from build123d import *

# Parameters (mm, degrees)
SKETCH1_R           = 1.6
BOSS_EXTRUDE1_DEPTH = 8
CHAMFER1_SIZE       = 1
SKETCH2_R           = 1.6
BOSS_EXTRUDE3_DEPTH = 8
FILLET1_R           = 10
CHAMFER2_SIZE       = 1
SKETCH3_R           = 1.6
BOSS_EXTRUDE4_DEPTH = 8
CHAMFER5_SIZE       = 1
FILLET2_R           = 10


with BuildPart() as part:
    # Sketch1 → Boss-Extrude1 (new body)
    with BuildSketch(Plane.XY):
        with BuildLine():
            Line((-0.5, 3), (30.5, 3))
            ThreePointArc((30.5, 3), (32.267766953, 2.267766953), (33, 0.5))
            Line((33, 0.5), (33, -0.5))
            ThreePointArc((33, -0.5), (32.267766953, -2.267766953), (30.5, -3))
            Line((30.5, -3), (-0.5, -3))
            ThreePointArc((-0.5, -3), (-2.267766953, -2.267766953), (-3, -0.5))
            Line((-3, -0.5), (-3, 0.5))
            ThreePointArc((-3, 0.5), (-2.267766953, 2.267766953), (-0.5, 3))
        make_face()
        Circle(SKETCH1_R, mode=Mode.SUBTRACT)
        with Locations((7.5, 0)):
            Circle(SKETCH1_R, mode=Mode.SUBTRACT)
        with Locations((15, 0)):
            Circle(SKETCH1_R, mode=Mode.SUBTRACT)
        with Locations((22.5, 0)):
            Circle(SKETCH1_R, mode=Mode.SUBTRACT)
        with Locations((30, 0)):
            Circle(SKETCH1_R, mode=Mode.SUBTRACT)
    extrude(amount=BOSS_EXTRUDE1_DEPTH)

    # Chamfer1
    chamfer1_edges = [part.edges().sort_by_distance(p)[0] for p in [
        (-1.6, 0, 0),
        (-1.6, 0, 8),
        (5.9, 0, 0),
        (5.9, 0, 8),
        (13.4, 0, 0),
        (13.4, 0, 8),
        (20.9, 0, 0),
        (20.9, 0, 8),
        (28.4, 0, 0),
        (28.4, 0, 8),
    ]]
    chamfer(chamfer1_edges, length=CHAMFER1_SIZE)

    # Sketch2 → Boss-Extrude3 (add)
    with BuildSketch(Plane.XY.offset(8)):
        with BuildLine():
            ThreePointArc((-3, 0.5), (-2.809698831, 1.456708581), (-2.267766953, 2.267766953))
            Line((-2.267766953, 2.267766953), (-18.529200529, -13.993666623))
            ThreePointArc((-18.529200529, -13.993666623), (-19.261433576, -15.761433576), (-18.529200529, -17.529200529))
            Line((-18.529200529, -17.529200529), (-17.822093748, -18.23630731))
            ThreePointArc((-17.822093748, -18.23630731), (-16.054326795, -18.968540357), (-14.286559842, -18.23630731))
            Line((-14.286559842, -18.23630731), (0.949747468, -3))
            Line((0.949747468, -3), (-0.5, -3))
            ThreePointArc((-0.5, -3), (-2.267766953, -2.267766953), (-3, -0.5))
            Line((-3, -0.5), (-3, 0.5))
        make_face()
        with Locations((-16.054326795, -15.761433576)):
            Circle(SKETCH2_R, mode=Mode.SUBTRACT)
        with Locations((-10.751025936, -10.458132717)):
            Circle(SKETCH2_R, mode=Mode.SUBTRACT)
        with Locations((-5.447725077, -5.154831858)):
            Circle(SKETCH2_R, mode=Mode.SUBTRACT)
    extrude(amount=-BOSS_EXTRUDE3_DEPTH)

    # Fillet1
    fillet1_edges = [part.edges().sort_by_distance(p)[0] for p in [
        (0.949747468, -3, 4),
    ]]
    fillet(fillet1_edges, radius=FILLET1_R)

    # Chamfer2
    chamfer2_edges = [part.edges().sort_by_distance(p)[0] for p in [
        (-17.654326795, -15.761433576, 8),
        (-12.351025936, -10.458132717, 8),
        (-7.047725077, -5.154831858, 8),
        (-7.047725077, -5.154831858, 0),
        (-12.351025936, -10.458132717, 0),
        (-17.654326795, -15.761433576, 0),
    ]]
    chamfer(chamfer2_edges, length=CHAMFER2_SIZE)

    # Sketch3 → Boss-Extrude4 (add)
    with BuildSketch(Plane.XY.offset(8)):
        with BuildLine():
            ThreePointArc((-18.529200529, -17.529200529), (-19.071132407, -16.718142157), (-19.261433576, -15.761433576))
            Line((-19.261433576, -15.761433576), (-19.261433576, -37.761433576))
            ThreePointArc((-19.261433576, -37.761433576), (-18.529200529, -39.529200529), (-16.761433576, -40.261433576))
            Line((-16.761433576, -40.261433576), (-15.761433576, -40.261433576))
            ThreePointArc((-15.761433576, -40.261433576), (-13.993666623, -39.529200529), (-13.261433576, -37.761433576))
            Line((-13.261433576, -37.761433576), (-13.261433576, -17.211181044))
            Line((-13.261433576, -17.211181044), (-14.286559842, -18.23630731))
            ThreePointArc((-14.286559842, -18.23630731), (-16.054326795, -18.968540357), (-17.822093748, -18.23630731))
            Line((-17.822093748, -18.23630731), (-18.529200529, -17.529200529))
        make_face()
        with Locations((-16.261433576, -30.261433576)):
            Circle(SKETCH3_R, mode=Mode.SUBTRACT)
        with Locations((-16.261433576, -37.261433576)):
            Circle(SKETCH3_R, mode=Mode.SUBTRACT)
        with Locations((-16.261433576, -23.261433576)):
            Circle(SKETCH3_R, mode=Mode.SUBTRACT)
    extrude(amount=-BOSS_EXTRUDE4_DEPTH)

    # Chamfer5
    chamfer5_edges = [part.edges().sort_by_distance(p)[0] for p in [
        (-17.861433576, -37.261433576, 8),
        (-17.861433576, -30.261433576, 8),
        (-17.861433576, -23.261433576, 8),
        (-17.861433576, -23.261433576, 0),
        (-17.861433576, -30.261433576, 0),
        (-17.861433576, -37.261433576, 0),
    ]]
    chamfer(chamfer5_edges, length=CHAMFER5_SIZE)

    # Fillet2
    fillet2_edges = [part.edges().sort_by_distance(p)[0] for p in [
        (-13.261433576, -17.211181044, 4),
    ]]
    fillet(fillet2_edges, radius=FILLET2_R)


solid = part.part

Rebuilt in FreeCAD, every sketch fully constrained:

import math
import FreeCAD as App
import Part
import Sketcher
from FreeCAD import Vector
Q = App.Units.Quantity


def edges_at(feature, points):
    """Names of the edges that pass closest to the given points."""
    edges = feature.Shape.Edges
    near = lambda p: min(range(len(edges)), key=lambda i: edges[i].distToShape(Part.Vertex(*p))[0])
    return sorted({f"Edge{near(p) + 1}" for p in points})

doc = App.newDocument("Part")
body = doc.addObject("PartDesign::Body", "Body")

sketch1 = body.newObject("Sketcher::SketchObject", "Sketch")
sketch1.AttachmentSupport = (doc.getObject("XY_Plane"), [""])
sketch1.MapMode = "FlatFace"
sketch1.addGeometry([
    Part.LineSegment(Vector(30.5, 3, 0), Vector(-0.5, 3, 0)),
    Part.ArcOfCircle(Part.Circle(Vector(-0.5, 0.5, 0), Vector(0, 0, 1), 2.5), math.radians(90), math.radians(180)),
    Part.LineSegment(Vector(-3, 0.5, 0), Vector(-3, -0.5, 0)),
    Part.ArcOfCircle(Part.Circle(Vector(-0.5, -0.5, 0), Vector(0, 0, 1), 2.5), math.radians(180), math.radians(270)),
    Part.LineSegment(Vector(-0.5, -3, 0), Vector(30.5, -3, 0)),
    Part.ArcOfCircle(Part.Circle(Vector(30.5, -0.5, 0), Vector(0, 0, 1), 2.5), math.radians(-90), math.radians(0)),
    Part.LineSegment(Vector(33, -0.5, 0), Vector(33, 0.5, 0)),
    Part.ArcOfCircle(Part.Circle(Vector(30.5, 0.5, 0), Vector(0, 0, 1), 2.5), math.radians(0), math.radians(90)),
    Part.Circle(Vector(30, 0, 0), Vector(0, 0, 1), 1.6),
    Part.Circle(Vector(22.5, 0, 0), Vector(0, 0, 1), 1.6),
    Part.Circle(Vector(15, 0, 0), Vector(0, 0, 1), 1.6),
    Part.Circle(Vector(7.5, 0, 0), Vector(0, 0, 1), 1.6),
    Part.Circle(Vector(0, 0, 0), Vector(0, 0, 1), 1.6),
], False)
sketch1.addConstraint([
    Sketcher.Constraint("Tangent", 0, 2, 1, 1),
    Sketcher.Constraint("Tangent", 1, 2, 2, 1),
    Sketcher.Constraint("Tangent", 2, 2, 3, 1),
    Sketcher.Constraint("Tangent", 3, 2, 4, 1),
    Sketcher.Constraint("Tangent", 4, 2, 5, 1),
    Sketcher.Constraint("Tangent", 5, 2, 6, 1),
    Sketcher.Constraint("Tangent", 6, 2, 7, 1),
    Sketcher.Constraint("Tangent", 7, 2, 0, 1),
    Sketcher.Constraint("Horizontal", 0),
    Sketcher.Constraint("Vertical", 2),
    Sketcher.Constraint("Horizontal", 4),
    Sketcher.Constraint("Vertical", 6),
    Sketcher.Constraint("Coincident", 12, 3, -1, 1),
    Sketcher.Constraint("Equal", 1, 3),
    Sketcher.Constraint("Equal", 3, 5),
    Sketcher.Constraint("Equal", 5, 7),
    Sketcher.Constraint("Equal", 8, 9),
    Sketcher.Constraint("Equal", 9, 10),
    Sketcher.Constraint("Equal", 10, 11),
    Sketcher.Constraint("Equal", 11, 12),
    Sketcher.Constraint("PointOnObject", 8, 3, -1),
    Sketcher.Constraint("PointOnObject", 9, 3, -1),
    Sketcher.Constraint("PointOnObject", 10, 3, -1),
    Sketcher.Constraint("PointOnObject", 11, 3, -1),
    Sketcher.Constraint("Diameter", 8, Q("3.2 mm")),
    Sketcher.Constraint("Radius", 1, Q("2.5 mm")),
    Sketcher.Constraint("DistanceX", 0, 2, 0, 1, Q("31 mm")),
    Sketcher.Constraint("DistanceY", 2, 2, 2, 1, Q("1 mm")),
    Sketcher.Constraint("DistanceX", -1, 1, 8, 3, Q("30 mm")),
    Sketcher.Constraint("DistanceX", -1, 1, 10, 3, Q("15 mm")),
    Sketcher.Constraint("DistanceY", -1, 1, 0, 2, Q("3 mm")),
    Sketcher.Constraint("DistanceX", 1, 2, -1, 1, Q("3 mm")),
    Sketcher.Constraint("DistanceX", 9, 3, 5, 3, Q("8 mm")),
    Sketcher.Constraint("DistanceX", 1, 3, 11, 3, Q("8 mm")),
])
pad1 = body.newObject("PartDesign::Pad", "Pad")
pad1.Profile = sketch1
pad1.Length = 8
doc.recompute()

chamfer = body.newObject("PartDesign::Chamfer", "Chamfer")
chamfer.Base = (pad1, edges_at(pad1, [
    (-1.6, 0, 0),
    (-1.6, 0, 8),
    (5.9, 0, 0),
    (5.9, 0, 8),
    (13.4, 0, 0),
    (13.4, 0, 8),
    (20.9, 0, 0),
    (20.9, 0, 8),
    (28.4, 0, 0),
    (28.4, 0, 8),
]))
chamfer.Size = 1

sketch2 = body.newObject("Sketcher::SketchObject", "Sketch001")
sketch2.AttachmentSupport = (doc.getObject("XY_Plane"), [""])
sketch2.MapMode = "FlatFace"
sketch2.AttachmentOffset = App.Placement(Vector(0, 0, 8), App.Rotation())
sketch2.addGeometry([
    Part.ArcOfCircle(Part.Circle(Vector(-0.5, 0.5, 0), Vector(0, 0, 1), 2.5), math.radians(135), math.radians(180)),
    Part.LineSegment(Vector(-2.3, 2.3, 0), Vector(-18.5, -14, 0)),
    Part.ArcOfCircle(Part.Circle(Vector(-16.8, -15.8, 0), Vector(0, 0, 1), 2.5), math.radians(135), math.radians(225)),
    Part.LineSegment(Vector(-18.5, -17.5, 0), Vector(-17.8, -18.2, 0)),
    Part.ArcOfCircle(Part.Circle(Vector(-16.1, -16.5, 0), Vector(0, 0, 1), 2.5), math.radians(-135), math.radians(-45)),
    Part.LineSegment(Vector(-14.3, -18.2, 0), Vector(0.9, -3, 0)),
    Part.LineSegment(Vector(0.9, -3, 0), Vector(-0.5, -3, 0)),
    Part.ArcOfCircle(Part.Circle(Vector(-0.5, -0.5, 0), Vector(0, 0, 1), 2.5), math.radians(180), math.radians(270)),
    Part.LineSegment(Vector(-3, -0.5, 0), Vector(-3, 0.5, 0)),
    Part.Circle(Vector(-16.1, -15.8, 0), Vector(0, 0, 1), 1.6),
    Part.Circle(Vector(-10.8, -10.5, 0), Vector(0, 0, 1), 1.6),
    Part.Circle(Vector(-5.4, -5.2, 0), Vector(0, 0, 1), 1.6),
], False)
sketch2.addConstraint([
    Sketcher.Constraint("Tangent", 0, 1, 1, 1),
    Sketcher.Constraint("Tangent", 1, 2, 2, 1),
    Sketcher.Constraint("Tangent", 2, 2, 3, 1),
    Sketcher.Constraint("Tangent", 3, 2, 4, 1),
    Sketcher.Constraint("Tangent", 4, 2, 5, 1),
    Sketcher.Constraint("Coincident", 5, 2, 6, 1),
    Sketcher.Constraint("Tangent", 6, 2, 7, 2),
    Sketcher.Constraint("Tangent", 7, 1, 8, 1),
    Sketcher.Constraint("Tangent", 8, 2, 0, 2),
    Sketcher.Constraint("Horizontal", 6),
    Sketcher.Constraint("Vertical", 8),
    Sketcher.Constraint("Equal", 0, 2),
    Sketcher.Constraint("Equal", 2, 4),
    Sketcher.Constraint("Equal", 4, 7),
    Sketcher.Constraint("Equal", 9, 10),
    Sketcher.Constraint("Equal", 10, 11),
    Sketcher.Constraint("Perpendicular", 1, 3),
    Sketcher.Constraint("Perpendicular", 3, 5),
    Sketcher.Constraint("Horizontal", 2, 3, 9, 3),
    Sketcher.Constraint("Horizontal", 3, 2, 4, 2),
    Sketcher.Constraint("Vertical", 4, 3, 9, 3),
    Sketcher.Constraint("Diameter", 9, Q("3.2 mm")),
    Sketcher.Constraint("Radius", 0, Q("2.5 mm")),
    Sketcher.Constraint("DistanceY", 8, 1, 8, 2, Q("1 mm")),
    Sketcher.Constraint("Distance", 3, Q("1 mm")),
    Sketcher.Constraint("DistanceY", 5, 2, -1, 1, Q("3 mm")),
    Sketcher.Constraint("DistanceX", 7, 1, -1, 1, Q("3 mm")),
    Sketcher.Constraint("DistanceX", 1, 2, -1, 1, Q("18.529201 mm")),
    Sketcher.Constraint("DistanceX", 9, 3, 10, 3, Q("5.303301 mm")),
    Sketcher.Constraint("DistanceY", 9, 3, 10, 3, Q("5.303301 mm")),
    Sketcher.Constraint("DistanceX", 10, 3, 11, 3, Q("5.303301 mm")),
    Sketcher.Constraint("DistanceY", 10, 3, 11, 3, Q("5.303301 mm")),
])
pad2 = body.newObject("PartDesign::Pad", "Pad001")
pad2.Profile = sketch2
pad2.Length = 8
pad2.Reversed = True
doc.recompute()

fillet = body.newObject("PartDesign::Fillet", "Fillet")
fillet.Base = (pad2, edges_at(pad2, [(0.95, -3, 4)]))
fillet.Radius = 10
doc.recompute()

chamfer2 = body.newObject("PartDesign::Chamfer", "Chamfer001")
chamfer2.Base = (fillet, edges_at(fillet, [
    (-17.654, -15.761, 8),
    (-12.351, -10.458, 8),
    (-7.048, -5.155, 8),
    (-7.048, -5.155, 0),
    (-12.351, -10.458, 0),
    (-17.654, -15.761, 0),
]))
chamfer2.Size = 1

sketch3 = body.newObject("Sketcher::SketchObject", "Sketch002")
sketch3.AttachmentSupport = (doc.getObject("XY_Plane"), [""])
sketch3.MapMode = "FlatFace"
sketch3.AttachmentOffset = App.Placement(Vector(0, 0, 8), App.Rotation())
sketch3.addGeometry([
    Part.ArcOfCircle(Part.Circle(Vector(-16.8, -15.8, 0), Vector(0, 0, 1), 2.5), math.radians(-180), math.radians(-135)),
    Part.LineSegment(Vector(-19.3, -15.8, 0), Vector(-19.3, -37.8, 0)),
    Part.ArcOfCircle(Part.Circle(Vector(-16.8, -37.8, 0), Vector(0, 0, 1), 2.5), math.radians(180), math.radians(270)),
    Part.LineSegment(Vector(-16.8, -40.3, 0), Vector(-15.8, -40.3, 0)),
    Part.ArcOfCircle(Part.Circle(Vector(-15.8, -37.8, 0), Vector(0, 0, 1), 2.5), math.radians(-90), math.radians(0)),
    Part.LineSegment(Vector(-13.3, -37.8, 0), Vector(-13.3, -17.2, 0)),
    Part.LineSegment(Vector(-13.3, -17.2, 0), Vector(-14.3, -18.2, 0)),
    Part.ArcOfCircle(Part.Circle(Vector(-16.1, -16.5, 0), Vector(0, 0, 1), 2.5), math.radians(-135), math.radians(-45)),
    Part.LineSegment(Vector(-17.8, -18.2, 0), Vector(-18.5, -17.5, 0)),
    Part.Circle(Vector(-16.3, -37.3, 0), Vector(0, 0, 1), 1.6),
    Part.Circle(Vector(-16.3, -30.3, 0), Vector(0, 0, 1), 1.6),
    Part.Circle(Vector(-16.3, -23.3, 0), Vector(0, 0, 1), 1.6),
], False)
sketch3.addConstraint([
    Sketcher.Constraint("Tangent", 0, 1, 1, 1),
    Sketcher.Constraint("Tangent", 1, 2, 2, 1),
    Sketcher.Constraint("Tangent", 2, 2, 3, 1),
    Sketcher.Constraint("Tangent", 3, 2, 4, 1),
    Sketcher.Constraint("Tangent", 4, 2, 5, 1),
    Sketcher.Constraint("Coincident", 5, 2, 6, 1),
    Sketcher.Constraint("Tangent", 6, 2, 7, 2),
    Sketcher.Constraint("Tangent", 7, 1, 8, 1),
    Sketcher.Constraint("Tangent", 8, 2, 0, 2),
    Sketcher.Constraint("Vertical", 1),
    Sketcher.Constraint("Horizontal", 3),
    Sketcher.Constraint("Vertical", 5),
    Sketcher.Constraint("Equal", 0, 2),
    Sketcher.Constraint("Equal", 2, 4),
    Sketcher.Constraint("Equal", 4, 7),
    Sketcher.Constraint("Equal", 9, 10),
    Sketcher.Constraint("Equal", 10, 11),
    Sketcher.Constraint("Perpendicular", 6, 8),
    Sketcher.Constraint("Horizontal", 6, 2, 7, 1),
    Sketcher.Constraint("Vertical", 9, 3, 10, 3),
    Sketcher.Constraint("Vertical", 10, 3, 11, 3),
    Sketcher.Constraint("Diameter", 9, Q("3.2 mm")),
    Sketcher.Constraint("Radius", 0, Q("2.5 mm")),
    Sketcher.Constraint("DistanceX", 3, 1, 3, 2, Q("1 mm")),
    Sketcher.Constraint("DistanceY", 1, 2, 1, 1, Q("22 mm")),
    Sketcher.Constraint("Distance", 8, Q("1 mm")),
    Sketcher.Constraint("DistanceY", 9, 3, 10, 3, Q("7 mm")),
    Sketcher.Constraint("DistanceY", 10, 3, 11, 3, Q("7 mm")),
    Sketcher.Constraint("DistanceX", 0, 1, 11, 3, Q("3 mm")),
    Sketcher.Constraint("DistanceY", 2, 2, 9, 3, Q("3 mm")),
    Sketcher.Constraint("DistanceX", 8, 2, -1, 1, Q("18.529201 mm")),
    Sketcher.Constraint("DistanceY", 8, 2, -1, 1, Q("17.529201 mm")),
])
pad3 = body.newObject("PartDesign::Pad", "Pad002")
pad3.Profile = sketch3
pad3.Length = 8
pad3.Reversed = True
doc.recompute()

chamfer3 = body.newObject("PartDesign::Chamfer", "Chamfer002")
chamfer3.Base = (pad3, edges_at(pad3, [
    (-17.861, -37.261, 8),
    (-17.861, -30.261, 8),
    (-17.861, -23.261, 8),
    (-17.861, -23.261, 0),
    (-17.861, -30.261, 0),
    (-17.861, -37.261, 0),
]))
chamfer3.Size = 1
doc.recompute()

fillet2 = body.newObject("PartDesign::Fillet", "Fillet001")
fillet2.Base = (chamfer3, edges_at(chamfer3, [(-13.261, -17.211, 4)]))
fillet2.Radius = 10

doc.recompute()
